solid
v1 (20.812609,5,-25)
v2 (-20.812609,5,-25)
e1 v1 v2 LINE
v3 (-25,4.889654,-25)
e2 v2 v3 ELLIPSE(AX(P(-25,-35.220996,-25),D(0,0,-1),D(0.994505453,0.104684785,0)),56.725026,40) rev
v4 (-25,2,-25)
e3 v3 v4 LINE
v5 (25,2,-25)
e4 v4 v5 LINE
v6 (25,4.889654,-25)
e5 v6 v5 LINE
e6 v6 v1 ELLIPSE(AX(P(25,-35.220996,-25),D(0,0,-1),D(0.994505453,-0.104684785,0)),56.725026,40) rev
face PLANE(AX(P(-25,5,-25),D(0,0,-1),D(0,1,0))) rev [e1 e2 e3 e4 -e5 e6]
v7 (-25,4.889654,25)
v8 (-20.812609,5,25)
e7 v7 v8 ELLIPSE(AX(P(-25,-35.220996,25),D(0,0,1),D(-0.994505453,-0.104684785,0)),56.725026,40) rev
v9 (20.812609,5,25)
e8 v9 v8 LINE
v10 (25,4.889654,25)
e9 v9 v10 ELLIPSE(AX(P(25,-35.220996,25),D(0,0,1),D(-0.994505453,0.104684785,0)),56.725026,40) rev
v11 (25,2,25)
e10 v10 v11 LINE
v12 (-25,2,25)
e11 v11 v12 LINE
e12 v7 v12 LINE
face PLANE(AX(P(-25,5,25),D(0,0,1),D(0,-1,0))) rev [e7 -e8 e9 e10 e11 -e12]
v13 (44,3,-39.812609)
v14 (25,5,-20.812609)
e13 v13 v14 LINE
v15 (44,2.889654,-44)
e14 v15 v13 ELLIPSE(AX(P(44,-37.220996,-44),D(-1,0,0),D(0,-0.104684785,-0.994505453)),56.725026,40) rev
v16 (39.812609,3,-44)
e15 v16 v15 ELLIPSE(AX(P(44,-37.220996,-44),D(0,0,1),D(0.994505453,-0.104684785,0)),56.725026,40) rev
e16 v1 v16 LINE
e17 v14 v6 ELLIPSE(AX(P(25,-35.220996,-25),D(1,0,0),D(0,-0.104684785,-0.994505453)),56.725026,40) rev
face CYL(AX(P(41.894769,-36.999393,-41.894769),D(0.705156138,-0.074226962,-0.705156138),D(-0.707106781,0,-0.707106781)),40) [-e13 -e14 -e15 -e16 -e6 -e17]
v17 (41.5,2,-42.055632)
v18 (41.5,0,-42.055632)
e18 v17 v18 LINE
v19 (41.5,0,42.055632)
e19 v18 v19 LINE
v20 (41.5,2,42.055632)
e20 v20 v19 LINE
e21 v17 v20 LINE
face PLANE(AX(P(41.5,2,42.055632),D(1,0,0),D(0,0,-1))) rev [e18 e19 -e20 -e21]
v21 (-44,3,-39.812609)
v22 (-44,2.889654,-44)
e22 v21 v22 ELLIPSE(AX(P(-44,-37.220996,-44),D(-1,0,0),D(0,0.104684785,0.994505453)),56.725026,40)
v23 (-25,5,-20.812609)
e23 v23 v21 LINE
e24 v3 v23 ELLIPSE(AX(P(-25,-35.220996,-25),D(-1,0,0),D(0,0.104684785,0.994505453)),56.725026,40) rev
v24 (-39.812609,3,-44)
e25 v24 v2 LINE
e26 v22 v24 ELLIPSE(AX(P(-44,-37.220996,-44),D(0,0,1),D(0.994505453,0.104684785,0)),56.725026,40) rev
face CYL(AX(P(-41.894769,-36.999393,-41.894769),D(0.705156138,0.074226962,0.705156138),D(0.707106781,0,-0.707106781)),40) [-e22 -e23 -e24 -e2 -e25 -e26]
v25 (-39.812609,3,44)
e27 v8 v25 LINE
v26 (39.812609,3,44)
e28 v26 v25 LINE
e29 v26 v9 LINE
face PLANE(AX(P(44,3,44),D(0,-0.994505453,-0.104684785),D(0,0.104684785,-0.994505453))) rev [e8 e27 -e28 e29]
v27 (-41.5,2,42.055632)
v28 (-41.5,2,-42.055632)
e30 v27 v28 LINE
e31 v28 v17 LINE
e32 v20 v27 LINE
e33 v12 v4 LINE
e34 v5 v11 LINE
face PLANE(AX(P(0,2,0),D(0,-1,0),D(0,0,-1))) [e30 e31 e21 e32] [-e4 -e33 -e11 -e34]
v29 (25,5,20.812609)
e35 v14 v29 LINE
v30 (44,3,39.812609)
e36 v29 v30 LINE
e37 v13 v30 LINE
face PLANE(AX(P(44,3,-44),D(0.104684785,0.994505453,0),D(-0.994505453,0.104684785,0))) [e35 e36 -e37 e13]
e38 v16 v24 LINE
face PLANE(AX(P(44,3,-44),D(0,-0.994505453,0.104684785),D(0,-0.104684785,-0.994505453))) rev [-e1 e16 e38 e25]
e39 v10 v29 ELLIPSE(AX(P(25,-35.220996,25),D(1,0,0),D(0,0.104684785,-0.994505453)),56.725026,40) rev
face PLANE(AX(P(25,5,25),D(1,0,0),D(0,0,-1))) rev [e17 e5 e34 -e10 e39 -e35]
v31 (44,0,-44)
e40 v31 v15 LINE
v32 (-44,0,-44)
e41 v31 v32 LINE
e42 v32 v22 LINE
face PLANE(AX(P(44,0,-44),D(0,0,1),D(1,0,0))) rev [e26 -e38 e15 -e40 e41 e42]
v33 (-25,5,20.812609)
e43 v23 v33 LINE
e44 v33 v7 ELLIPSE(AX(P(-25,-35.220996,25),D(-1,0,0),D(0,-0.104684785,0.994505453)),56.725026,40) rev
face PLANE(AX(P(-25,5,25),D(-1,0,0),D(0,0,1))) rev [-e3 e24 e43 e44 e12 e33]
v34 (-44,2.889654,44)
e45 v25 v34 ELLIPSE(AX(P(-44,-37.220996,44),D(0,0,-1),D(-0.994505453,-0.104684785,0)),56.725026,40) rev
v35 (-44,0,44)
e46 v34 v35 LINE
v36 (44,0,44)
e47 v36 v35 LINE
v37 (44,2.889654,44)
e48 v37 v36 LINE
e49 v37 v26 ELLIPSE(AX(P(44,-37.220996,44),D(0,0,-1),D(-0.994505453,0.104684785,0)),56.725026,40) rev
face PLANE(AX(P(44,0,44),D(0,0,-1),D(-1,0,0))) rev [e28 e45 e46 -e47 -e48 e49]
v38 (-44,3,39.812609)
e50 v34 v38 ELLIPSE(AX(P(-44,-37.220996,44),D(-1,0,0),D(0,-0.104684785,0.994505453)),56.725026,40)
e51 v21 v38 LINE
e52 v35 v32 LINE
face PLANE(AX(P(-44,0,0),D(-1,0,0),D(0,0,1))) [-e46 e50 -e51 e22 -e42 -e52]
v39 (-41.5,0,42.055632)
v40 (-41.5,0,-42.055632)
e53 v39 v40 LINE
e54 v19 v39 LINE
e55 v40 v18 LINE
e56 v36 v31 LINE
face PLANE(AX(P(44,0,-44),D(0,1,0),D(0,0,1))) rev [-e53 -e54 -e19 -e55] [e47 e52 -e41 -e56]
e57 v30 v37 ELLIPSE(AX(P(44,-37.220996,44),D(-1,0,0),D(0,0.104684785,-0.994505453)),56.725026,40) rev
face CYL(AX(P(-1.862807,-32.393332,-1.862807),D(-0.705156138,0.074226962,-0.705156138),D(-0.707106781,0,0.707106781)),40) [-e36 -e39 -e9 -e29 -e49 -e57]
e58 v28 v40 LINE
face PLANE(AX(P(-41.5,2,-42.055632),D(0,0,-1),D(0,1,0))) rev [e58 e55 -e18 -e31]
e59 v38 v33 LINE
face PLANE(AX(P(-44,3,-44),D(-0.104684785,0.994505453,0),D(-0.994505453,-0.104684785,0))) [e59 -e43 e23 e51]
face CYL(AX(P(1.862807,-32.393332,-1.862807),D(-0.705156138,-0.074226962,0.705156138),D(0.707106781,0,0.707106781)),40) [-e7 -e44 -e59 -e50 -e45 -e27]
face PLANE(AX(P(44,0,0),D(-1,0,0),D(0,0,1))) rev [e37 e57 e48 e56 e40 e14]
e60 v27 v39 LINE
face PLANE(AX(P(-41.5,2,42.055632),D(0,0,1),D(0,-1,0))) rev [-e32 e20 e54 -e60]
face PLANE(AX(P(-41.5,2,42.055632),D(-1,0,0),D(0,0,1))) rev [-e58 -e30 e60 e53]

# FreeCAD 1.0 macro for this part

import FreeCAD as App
import Part
import Sketcher

V = App.Vector
Q = App.Units.Quantity


def edges_at(feature, points):
    """Names of the edges that pass closest to the given points."""
    edges = feature.Shape.Edges
    near = lambda p: min(range(len(edges)), key=lambda i: edges[i].distToShape(Part.Vertex(*p))[0])
    return sorted({f"Edge{near(p) + 1}" for p in points})

doc = App.newDocument("Part")
body = doc.addObject("PartDesign::Body", "Body")

# Sketch on YZ plane
sketch1 = body.newObject("Sketcher::SketchObject", "Sketch")
sketch1.AttachmentSupport = (doc.getObject("YZ_Plane"), [""])
sketch1.MapMode = "FlatFace"
sketch1.addGeometry([
    Part.LineSegment(V(0, 44, 0), V(0, -44, 0)),  # 0
    Part.LineSegment(V(0, -44, 0), V(3, -44, 0)),  # 1
    Part.LineSegment(V(3, -44, 0), V(5, -25, 0)),  # 2
    Part.LineSegment(V(5, -25, 0), V(5, 25, 0)),  # 3
    Part.LineSegment(V(5, 25, 0), V(3, 44, 0)),  # 4
    Part.LineSegment(V(3, 44, 0), V(0, 44, 0)),  # 5
], False)
sketch1.addConstraint([
    Sketcher.Constraint("Coincident", 0, 2, 1, 1),
    Sketcher.Constraint("Coincident", 1, 2, 2, 1),
    Sketcher.Constraint("Coincident", 2, 2, 3, 1),
    Sketcher.Constraint("Coincident", 3, 2, 4, 1),
    Sketcher.Constraint("Coincident", 4, 2, 5, 1),
    Sketcher.Constraint("Coincident", 5, 2, 0, 1),
    Sketcher.Constraint("Vertical", 0),
    Sketcher.Constraint("Horizontal", 1),
    Sketcher.Constraint("Vertical", 3),
    Sketcher.Constraint("Horizontal", 5),
    Sketcher.Constraint("Symmetric", 0, 2, 5, 2, -1, 1),
    Sketcher.Constraint("Vertical", 1, 2, 4, 2),
    Sketcher.Constraint("Equal", 2, 4),
    Sketcher.Constraint("DistanceX", 1, 1, 1, 2, Q("3 mm")),
    Sketcher.Constraint("DistanceY", 0, 2, 0, 1, Q("88 mm")),
    Sketcher.Constraint("DistanceY", 3, 1, 3, 2, Q("50 mm")),
    Sketcher.Constraint("DistanceX", -1, 1, 2, 2, Q("5 mm")),
])
pad1 = body.newObject("PartDesign::Pad", "Pad")
pad1.Profile = sketch1
pad1.Length = 88
pad1.Midplane = True

# Sketch on XY plane
sketch2 = body.newObject("Sketcher::SketchObject", "Sketch001")
sketch2.AttachmentSupport = (doc.getObject("XY_Plane"), [""])
sketch2.MapMode = "FlatFace"
sketch2.addGeometry([
    Part.LineSegment(V(-57.455, 18.455, 0), V(-57.455, -13.455, 0)),  # 0
    Part.LineSegment(V(-57.455, -13.455, 0), V(57.455, -13.455, 0)),  # 1
    Part.LineSegment(V(57.455, -13.455, 0), V(57.455, 18.455, 0)),  # 2
    Part.LineSegment(V(57.455, 18.455, 0), V(-57.455, 18.455, 0)),  # 3
    Part.LineSegment(V(44, 3, 0), V(44, 0, 0)),  # 4
    Part.LineSegment(V(44, 0, 0), V(-44, 0, 0)),  # 5
    Part.LineSegment(V(-44, 0, 0), V(-44, 3, 0)),  # 6
    Part.LineSegment(V(-44, 3, 0), V(-25, 5, 0)),  # 7
    Part.LineSegment(V(-25, 5, 0), V(25, 5, 0)),  # 8
    Part.LineSegment(V(25, 5, 0), V(44, 3, 0)),  # 9
], False)
sketch2.addConstraint([
    Sketcher.Constraint("Coincident", 0, 2, 1, 1),
    Sketcher.Constraint("Coincident", 1, 2, 2, 1),
    Sketcher.Constraint("Coincident", 2, 2, 3, 1),
    Sketcher.Constraint("Coincident", 3, 2, 0, 1),
    Sketcher.Constraint("Coincident", 4, 2, 5, 1),
    Sketcher.Constraint("Coincident", 5, 2, 6, 1),
    Sketcher.Constraint("Coincident", 6, 2, 7, 1),
    Sketcher.Constraint("Coincident", 7, 2, 8, 1),
    Sketcher.Constraint("Coincident", 8, 2, 9, 1),
    Sketcher.Constraint("Coincident", 9, 2, 4, 1),
    Sketcher.Constraint("Vertical", 0),
    Sketcher.Constraint("Horizontal", 1),
    Sketcher.Constraint("Vertical", 2),
    Sketcher.Constraint("Horizontal", 3),
    Sketcher.Constraint("Vertical", 4),
    Sketcher.Constraint("Horizontal", 5),
    Sketcher.Constraint("Vertical", 6),
    Sketcher.Constraint("Horizontal", 8),
    Sketcher.Constraint("Symmetric", 4, 2, 5, 2, -1, 1),
    Sketcher.Constraint("Horizontal", 6, 2, 9, 2),
    Sketcher.Constraint("Equal", 7, 9),
    Sketcher.Constraint("DistanceX", 5, 2, 5, 1, Q("88 mm")),
    Sketcher.Constraint("DistanceX", 8, 1, 8, 2, Q("50 mm")),
    Sketcher.Constraint("DistanceY", 4, 2, 4, 1, Q("3 mm")),
    Sketcher.Constraint("DistanceY", -1, 1, 7, 2, Q("5 mm")),
    Sketcher.Constraint("DistanceX", 1, 1, 1, 2, Q("114.91 mm")),
    Sketcher.Constraint("DistanceY", 0, 2, 0, 1, Q("31.91 mm")),
    Sketcher.Constraint("DistanceX", 0, 2, -1, 1, Q("57.455 mm")),
    Sketcher.Constraint("DistanceY", 0, 2, -1, 1, Q("13.455 mm")),
])
pocket1 = body.newObject("PartDesign::Pocket", "Pocket")
pocket1.Profile = sketch2
pocket1.Length = 88
pocket1.Midplane = True

# Sketch on XZ plane
sketch3 = body.newObject("Sketcher::SketchObject", "Sketch002")
sketch3.AttachmentSupport = (doc.getObject("XZ_Plane"), [""])
sketch3.MapMode = "FlatFace"
sketch3.addGeometry([
    Part.LineSegment(V(-41.5, 42.055632, 0), V(-41.5, -42.055632, 0)),
    Part.LineSegment(V(-41.5, -42.055632, 0), V(41.5, -42.055632, 0)),
    Part.LineSegment(V(41.5, -42.055632, 0), V(41.5, 42.055632, 0)),
    Part.LineSegment(V(41.5, 42.055632, 0), V(-41.5, 42.055632, 0)),
], False)
sketch3.addConstraint([
    Sketcher.Constraint("Coincident", 0, 2, 1, 1),
    Sketcher.Constraint("Coincident", 1, 2, 2, 1),
    Sketcher.Constraint("Coincident", 2, 2, 3, 1),
    Sketcher.Constraint("Coincident", 3, 2, 0, 1),
    Sketcher.Constraint("Vertical", 0),
    Sketcher.Constraint("Horizontal", 1),
    Sketcher.Constraint("Vertical", 2),
    Sketcher.Constraint("Horizontal", 3),
    Sketcher.Constraint("Symmetric", 0, 2, 2, 2, -1, 1),
    Sketcher.Constraint("DistanceX", 1, 1, 1, 2, Q("83 mm")),
    Sketcher.Constraint("DistanceY", 0, 2, 0, 1, Q("84.111265 mm")),
])
pocket2 = body.newObject("PartDesign::Pocket", "Pocket001")
pocket2.Profile = sketch3
pocket2.Length = 2

# Sketch on XZ plane
sketch4 = body.newObject("Sketcher::SketchObject", "Sketch003")
sketch4.AttachmentSupport = (doc.getObject("XZ_Plane"), [""])
sketch4.MapMode = "FlatFace"
sketch4.addGeometry([
    Part.LineSegment(V(-25, 25, 0), V(-25, -25, 0)),
    Part.LineSegment(V(-25, -25, 0), V(25, -25, 0)),
    Part.LineSegment(V(25, -25, 0), V(25, 25, 0)),
    Part.LineSegment(V(25, 25, 0), V(-25, 25, 0)),
], False)
sketch4.addConstraint([
    Sketcher.Constraint("Coincident", 0, 2, 1, 1),
    Sketcher.Constraint("Coincident", 1, 2, 2, 1),
    Sketcher.Constraint("Coincident", 2, 2, 3, 1),
    Sketcher.Constraint("Coincident", 3, 2, 0, 1),
    Sketcher.Constraint("Vertical", 0),
    Sketcher.Constraint("Horizontal", 1),
    Sketcher.Constraint("Vertical", 2),
    Sketcher.Constraint("Horizontal", 3),
    Sketcher.Constraint("Symmetric", 0, 2, 2, 2, -1, 1),
    Sketcher.Constraint("Equal", 3, 0),
    Sketcher.Constraint("DistanceX", 1, 1, 1, 2, Q("50 mm")),
])
pocket3 = body.newObject("PartDesign::Pocket", "Pocket002")
pocket3.Profile = sketch4
pocket3.Type = "ThroughAll"
doc.recompute()

fillet = body.newObject("PartDesign::Fillet", "Fillet")
fillet.Base = (pocket3, edges_at(pocket3, [
    (34.5, 4, -34.5),
    (-34.5, 4, -34.5),
    (-34.5, 4, 34.5),
    (34.5, 4, 34.5),
]))
fillet.Radius = 40

doc.recompute()
